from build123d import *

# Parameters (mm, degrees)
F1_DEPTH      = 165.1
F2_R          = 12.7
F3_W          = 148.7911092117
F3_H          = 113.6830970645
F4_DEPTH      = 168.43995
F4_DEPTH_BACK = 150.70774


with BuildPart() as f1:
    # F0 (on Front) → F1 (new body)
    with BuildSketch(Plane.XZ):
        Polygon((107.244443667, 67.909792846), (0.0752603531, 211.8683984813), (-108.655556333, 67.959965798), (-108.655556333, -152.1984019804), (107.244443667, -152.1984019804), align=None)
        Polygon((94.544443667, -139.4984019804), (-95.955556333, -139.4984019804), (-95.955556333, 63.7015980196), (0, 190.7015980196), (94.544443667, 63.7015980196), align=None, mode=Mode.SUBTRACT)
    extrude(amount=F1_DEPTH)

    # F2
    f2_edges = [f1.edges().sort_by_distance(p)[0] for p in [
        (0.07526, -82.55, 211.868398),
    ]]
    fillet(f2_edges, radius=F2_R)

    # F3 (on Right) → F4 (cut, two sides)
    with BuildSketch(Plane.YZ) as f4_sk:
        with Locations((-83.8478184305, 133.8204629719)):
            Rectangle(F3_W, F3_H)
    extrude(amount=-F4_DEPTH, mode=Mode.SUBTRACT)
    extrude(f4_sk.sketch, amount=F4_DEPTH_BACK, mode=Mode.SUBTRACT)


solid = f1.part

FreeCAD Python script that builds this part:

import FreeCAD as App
import Part
import Sketcher
from FreeCAD import Vector
Q = App.Units.Quantity


def edges_at(feature, points):
    """Names of the edges that pass closest to the given points."""
    edges = feature.Shape.Edges
    near = lambda p: min(range(len(edges)), key=lambda i: edges[i].distToShape(Part.Vertex(*p))[0])
    return sorted({f"Edge{near(p) + 1}" for p in points})


def add_polygon(sketch, points):
    """Adds a closed chain of lines whose ends are joined by coincident constraints."""
    first, n = sketch.GeometryCount, len(points)
    for a, b in zip(points, points[1:] + points[:1]):
        sketch.addGeometry(Part.LineSegment(App.Vector(*a, 0), App.Vector(*b, 0)), False)
    for i in range(n):
        sketch.addConstraint(Sketcher.Constraint("Coincident", first + i, 2, first + (i + 1) % n, 1))

doc = App.newDocument("Part")
body = doc.addObject("PartDesign::Body", "Body")

sketch1 = doc.addObject("Sketcher::SketchObject", "Sketch")
body.addObject(sketch1)
sketch1.AttachmentSupport = (doc.XZ_Plane, [""])
sketch1.MapMode = "FlatFace"
add_polygon(sketch1, [(107, 68), (0, 212), (-109, 68), (-109, -152), (107, -152)])
add_polygon(sketch1, [(95, 64), (95, -139), (-96, -139), (-96, 64), (0, 191)])
sketch1.addConstraint([
    Sketcher.Constraint("Vertical", 2),
    Sketcher.Constraint("Horizontal", 3),
    Sketcher.Constraint("Vertical", 4),
    Sketcher.Constraint("Vertical", 5),
    Sketcher.Constraint("Horizontal", 6),
    Sketcher.Constraint("Vertical", 7),
    Sketcher.Constraint("PointOnObject", 8, 2, -2),
    Sketcher.Constraint("Parallel", 1, 8),
    Sketcher.Constraint("Parallel", 0, 9),
    Sketcher.Constraint("Horizontal", 7, 2, 9, 2),
    Sketcher.Constraint("DistanceY", 5, 2, 5, 1, Q("8 in")),
    Sketcher.Constraint("DistanceX", 3, 1, 3, 2, Q("8.5 in")),
    Sketcher.Constraint("DistanceX", 6, 2, 6, 1, Q("7.5 in")),
    Sketcher.Constraint("DistanceX", 2, 2, 5, 2, Q("8 in")),
    Sketcher.Constraint("DistanceY", 7, 2, 8, 2, Q("5 in")),
    Sketcher.Constraint("DistanceY", 3, 2, 5, 2, Q("0.5 in")),
    Sketcher.Constraint("DistanceY", -1, 1, 0, 2, 211.868398),
    Sketcher.Constraint("DistanceY", 2, 2, -1, 1, 152.198402),
    Sketcher.Constraint("Distance", 1, 180.36637),
    Sketcher.Constraint("DistanceY", 2, 2, 2, 1, 220.158368),
])
pad1 = doc.addObject("PartDesign::Pad", "Pad")
body.addObject(pad1)
pad1.Profile = sketch1
pad1.Length = Q("6.5 in")
doc.recompute()

fillet = doc.addObject("PartDesign::Fillet", "Fillet")
body.addObject(fillet)
fillet.Base = (pad1, edges_at(pad1, [(0.075, -82.55, 211.868)]))
fillet.Radius = Q("0.5 in")

sketch2 = doc.addObject("Sketcher::SketchObject", "Sketch001")
body.addObject(sketch2)
sketch2.AttachmentSupport = (doc.YZ_Plane, [""])
sketch2.MapMode = "FlatFace"
add_polygon(sketch2, [(-158, 191), (-158, 77), (-9, 77), (-9, 191)])
sketch2.addConstraint([
    Sketcher.Constraint("Vertical", 0),
    Sketcher.Constraint("Horizontal", 1),
    Sketcher.Constraint("Vertical", 2),
    Sketcher.Constraint("Horizontal", 3),
    Sketcher.Constraint("DistanceX", 1, 1, 1, 2, 148.791109),
    Sketcher.Constraint("DistanceY", 0, 2, 0, 1, 113.683097),
    Sketcher.Constraint("DistanceY", -1, 1, 2, 2, 190.662012),
    Sketcher.Constraint("DistanceX", 0, 2, -1, 1, 158.243373),
])
pocket1 = doc.addObject("PartDesign::Pocket", "Pocket")
body.addObject(pocket1)
pocket1.Profile = sketch2
pocket1.Type = "ThroughAll"
pocket1.Midplane = True

doc.recompute()
